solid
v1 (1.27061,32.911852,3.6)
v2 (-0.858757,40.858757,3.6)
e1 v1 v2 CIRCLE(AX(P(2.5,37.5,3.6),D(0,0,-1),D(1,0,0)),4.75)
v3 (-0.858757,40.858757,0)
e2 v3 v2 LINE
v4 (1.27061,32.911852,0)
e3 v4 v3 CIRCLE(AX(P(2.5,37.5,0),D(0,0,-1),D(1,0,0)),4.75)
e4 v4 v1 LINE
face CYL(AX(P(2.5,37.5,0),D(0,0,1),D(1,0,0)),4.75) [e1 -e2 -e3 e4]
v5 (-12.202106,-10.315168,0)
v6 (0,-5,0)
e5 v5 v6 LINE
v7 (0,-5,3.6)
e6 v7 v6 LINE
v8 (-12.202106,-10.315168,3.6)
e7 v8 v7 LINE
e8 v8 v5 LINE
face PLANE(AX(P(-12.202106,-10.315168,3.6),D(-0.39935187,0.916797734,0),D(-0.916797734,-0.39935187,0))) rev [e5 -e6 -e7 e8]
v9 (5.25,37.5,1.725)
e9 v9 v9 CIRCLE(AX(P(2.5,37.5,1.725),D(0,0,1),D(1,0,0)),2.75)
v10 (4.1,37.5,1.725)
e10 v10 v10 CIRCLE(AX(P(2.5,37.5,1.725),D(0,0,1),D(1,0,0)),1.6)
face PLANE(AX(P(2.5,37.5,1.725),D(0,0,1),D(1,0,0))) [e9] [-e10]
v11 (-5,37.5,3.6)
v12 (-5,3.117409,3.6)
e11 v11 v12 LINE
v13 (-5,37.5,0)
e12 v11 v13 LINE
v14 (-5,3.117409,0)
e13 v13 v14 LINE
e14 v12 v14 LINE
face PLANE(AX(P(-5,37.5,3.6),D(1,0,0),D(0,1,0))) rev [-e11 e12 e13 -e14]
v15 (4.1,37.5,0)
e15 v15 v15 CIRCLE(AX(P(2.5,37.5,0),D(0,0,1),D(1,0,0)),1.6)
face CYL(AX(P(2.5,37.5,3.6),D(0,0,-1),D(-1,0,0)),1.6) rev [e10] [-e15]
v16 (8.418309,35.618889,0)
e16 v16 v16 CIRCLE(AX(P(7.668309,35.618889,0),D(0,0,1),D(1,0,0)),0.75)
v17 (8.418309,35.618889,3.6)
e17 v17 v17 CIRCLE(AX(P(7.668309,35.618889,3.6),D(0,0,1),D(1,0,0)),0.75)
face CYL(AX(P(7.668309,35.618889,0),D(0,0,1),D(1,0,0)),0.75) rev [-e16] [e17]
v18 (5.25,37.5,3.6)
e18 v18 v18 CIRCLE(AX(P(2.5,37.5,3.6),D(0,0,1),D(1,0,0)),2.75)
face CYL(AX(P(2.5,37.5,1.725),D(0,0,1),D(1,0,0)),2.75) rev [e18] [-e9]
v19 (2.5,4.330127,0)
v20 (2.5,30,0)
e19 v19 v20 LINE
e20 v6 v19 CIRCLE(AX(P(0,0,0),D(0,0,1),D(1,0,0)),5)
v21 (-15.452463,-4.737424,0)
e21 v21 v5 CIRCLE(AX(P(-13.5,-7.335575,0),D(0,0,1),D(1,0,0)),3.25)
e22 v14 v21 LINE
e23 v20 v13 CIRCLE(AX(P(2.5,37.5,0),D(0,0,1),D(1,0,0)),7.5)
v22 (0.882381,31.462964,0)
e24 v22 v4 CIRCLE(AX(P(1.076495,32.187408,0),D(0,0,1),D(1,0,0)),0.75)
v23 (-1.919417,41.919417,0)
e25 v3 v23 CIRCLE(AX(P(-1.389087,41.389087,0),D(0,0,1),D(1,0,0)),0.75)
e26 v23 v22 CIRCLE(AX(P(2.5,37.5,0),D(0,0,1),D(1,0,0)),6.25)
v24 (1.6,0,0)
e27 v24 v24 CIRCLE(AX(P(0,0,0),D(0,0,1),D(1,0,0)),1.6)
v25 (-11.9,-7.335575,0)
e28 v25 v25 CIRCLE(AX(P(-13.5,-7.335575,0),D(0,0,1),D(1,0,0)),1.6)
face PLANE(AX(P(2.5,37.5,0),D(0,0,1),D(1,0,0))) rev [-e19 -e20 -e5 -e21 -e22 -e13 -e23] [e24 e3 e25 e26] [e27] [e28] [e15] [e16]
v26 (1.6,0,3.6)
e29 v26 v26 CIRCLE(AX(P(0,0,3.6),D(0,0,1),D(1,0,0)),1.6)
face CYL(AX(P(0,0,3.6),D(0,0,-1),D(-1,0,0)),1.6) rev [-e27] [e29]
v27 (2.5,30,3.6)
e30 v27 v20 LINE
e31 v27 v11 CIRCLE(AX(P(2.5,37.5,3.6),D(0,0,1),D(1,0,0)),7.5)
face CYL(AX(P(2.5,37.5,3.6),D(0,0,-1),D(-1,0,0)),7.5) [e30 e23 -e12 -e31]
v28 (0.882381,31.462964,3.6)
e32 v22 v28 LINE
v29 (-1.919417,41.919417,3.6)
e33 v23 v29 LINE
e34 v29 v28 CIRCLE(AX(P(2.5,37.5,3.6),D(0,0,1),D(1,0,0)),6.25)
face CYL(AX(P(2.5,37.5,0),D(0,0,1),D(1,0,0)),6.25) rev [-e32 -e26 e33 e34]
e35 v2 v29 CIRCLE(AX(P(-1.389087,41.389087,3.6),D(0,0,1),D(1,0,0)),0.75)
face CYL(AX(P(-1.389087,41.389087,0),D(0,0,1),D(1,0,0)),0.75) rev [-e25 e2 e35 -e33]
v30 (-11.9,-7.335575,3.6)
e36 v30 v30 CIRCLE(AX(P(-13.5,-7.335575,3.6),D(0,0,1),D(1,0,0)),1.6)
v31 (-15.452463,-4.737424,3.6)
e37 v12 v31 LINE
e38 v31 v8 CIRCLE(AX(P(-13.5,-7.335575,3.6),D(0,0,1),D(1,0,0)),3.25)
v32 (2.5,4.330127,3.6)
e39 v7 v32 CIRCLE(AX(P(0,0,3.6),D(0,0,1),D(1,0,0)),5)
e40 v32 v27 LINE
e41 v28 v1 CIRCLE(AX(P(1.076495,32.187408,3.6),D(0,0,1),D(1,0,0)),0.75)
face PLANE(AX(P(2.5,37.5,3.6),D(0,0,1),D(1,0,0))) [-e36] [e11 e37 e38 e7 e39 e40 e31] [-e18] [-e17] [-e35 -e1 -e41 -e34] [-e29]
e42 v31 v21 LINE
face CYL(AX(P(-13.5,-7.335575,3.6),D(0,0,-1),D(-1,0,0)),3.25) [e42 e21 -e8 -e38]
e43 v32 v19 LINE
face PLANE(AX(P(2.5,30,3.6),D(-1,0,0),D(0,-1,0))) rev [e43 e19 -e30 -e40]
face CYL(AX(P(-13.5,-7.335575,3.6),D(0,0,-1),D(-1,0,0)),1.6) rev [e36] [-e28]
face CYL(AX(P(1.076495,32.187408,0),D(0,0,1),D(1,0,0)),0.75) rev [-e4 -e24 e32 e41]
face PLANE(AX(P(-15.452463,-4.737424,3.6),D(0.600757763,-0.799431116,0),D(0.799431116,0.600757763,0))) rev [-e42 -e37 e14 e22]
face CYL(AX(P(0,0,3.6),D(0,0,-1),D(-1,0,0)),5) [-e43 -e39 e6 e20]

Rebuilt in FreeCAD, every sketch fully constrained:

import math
import FreeCAD as App
import Part
import Sketcher

V = App.Vector
Q = App.Units.Quantity

doc = App.newDocument("Part")
body = doc.addObject("PartDesign::Body", "Body")

sketch1 = body.newObject("Sketcher::SketchObject", "Sketch")
sketch1.AttachmentSupport = (doc.getObject("XY_Plane"), [""])
sketch1.MapMode = "FlatFace"
sketch1.addGeometry(Part.LineSegment(V(-5, 37.5, 0), V(-5, 3.117409, 0)), False)
sketch1.addGeometry(Part.LineSegment(V(-5, 3.117409, 0), V(-15.452463, -4.737424, 0)), False)
sketch1.addGeometry(Part.ArcOfCircle(Part.Circle(V(-13.5, -7.335575, 0), V(0, 0, 1), 3.25), math.radians(126.924188), math.radians(293.537667)), False)
sketch1.addGeometry(Part.LineSegment(V(-12.202106, -10.315168, 0), V(0, -5, 0)), False)
sketch1.addGeometry(Part.ArcOfCircle(Part.Circle(V(0, 0, 0), V(0, 0, 1), 5), math.radians(-90), math.radians(60)), False)
sketch1.addGeometry(Part.LineSegment(V(2.5, 4.330127, 0), V(2.5, 30, 0)), False)
sketch1.addGeometry(Part.ArcOfCircle(Part.Circle(V(2.5, 37.5, 0), V(0, 0, 1), 7.5), math.radians(-90), math.radians(180)), False)
sketch1.addGeometry(Part.Circle(V(-13.5, -7.335575, 0), V(0, 0, 1), 1.6), False)
sketch1.addGeometry(Part.Circle(V(0, 0, 0), V(0, 0, 1), 1.6), False)
sketch1.addGeometry(Part.Circle(V(2.5, 37.5, 0), V(0, 0, 1), 1.6), False)
sketch1.addConstraint(Sketcher.Constraint("Coincident", 0, 2, 1, 1))
sketch1.addConstraint(Sketcher.Constraint("Tangent", 1, 2, 2, 1))
sketch1.addConstraint(Sketcher.Constraint("Tangent", 2, 2, 3, 1))
sketch1.addConstraint(Sketcher.Constraint("Coincident", 3, 2, 4, 1))
sketch1.addConstraint(Sketcher.Constraint("Coincident", 4, 2, 5, 1))
sketch1.addConstraint(Sketcher.Constraint("Coincident", 5, 2, 6, 1))
sketch1.addConstraint(Sketcher.Constraint("Tangent", 6, 2, 0, 1))
sketch1.addConstraint(Sketcher.Constraint("Vertical", 0))
sketch1.addConstraint(Sketcher.Constraint("Vertical", 5))
sketch1.addConstraint(Sketcher.Constraint("Coincident", 4, 3, -1, 1))
sketch1.addConstraint(Sketcher.Constraint("Coincident", 8, 3, -1, 1))
sketch1.addConstraint(Sketcher.Constraint("Coincident", 7, 3, 2, 3))
sketch1.addConstraint(Sketcher.Constraint("Coincident", 9, 3, 6, 3))
sketch1.addConstraint(Sketcher.Constraint("Equal", 7, 8))
sketch1.addConstraint(Sketcher.Constraint("Equal", 8, 9))
sketch1.addConstraint(Sketcher.Constraint("PointOnObject", 3, 2, -2))
sketch1.addConstraint(Sketcher.Constraint("Vertical", 9, 3, 4, 2))
sketch1.addConstraint(Sketcher.Constraint("Radius", 4, Q("5 mm")))
sketch1.addConstraint(Sketcher.Constraint("Diameter", 7, Q("3.2 mm")))
sketch1.addConstraint(Sketcher.Constraint("Radius", 6, Q("7.5 mm")))
sketch1.addConstraint(Sketcher.Constraint("Radius", 2, Q("3.25 mm")))
sketch1.addConstraint(Sketcher.Constraint("DistanceX", 0, 2, -1, 1, Q("5 mm")))
sketch1.addConstraint(Sketcher.Constraint("DistanceY", -1, 1, 5, 2, Q("30 mm")))
sketch1.addConstraint(Sketcher.Constraint("DistanceX", 2, 3, 6, 3, Q("16 mm")))
sketch1.addConstraint(Sketcher.Constraint("DistanceY", 0, 2, 0, 1, Q("34.382591 mm")))
sketch1.addConstraint(Sketcher.Constraint("DistanceY", 2, 2, -1, 1, Q("10.315168 mm")))
pad1 = body.newObject("PartDesign::Pad", "Pad")
pad1.Profile = sketch1
pad1.Length = 3.6

sketch2 = body.newObject("Sketcher::SketchObject", "Sketch001")
sketch2.AttachmentSupport = (doc.getObject("XY_Plane"), [""])
sketch2.MapMode = "FlatFace"
sketch2.AttachmentOffset = App.Placement(V(0, 0, 3.6), App.Rotation())
sketch2.addGeometry(Part.Circle(V(7.668309, 35.618889, 0), V(0, 0, 1), 0.75), False)
sketch2.addGeometry(Part.ArcOfCircle(Part.Circle(V(-1.389087, 41.389087, 0), V(0, 0, 1), 0.75), math.radians(-45), math.radians(135)), False)
sketch2.addGeometry(Part.ArcOfCircle(Part.Circle(V(2.5, 37.5, 0), V(0, 0, 1), 6.25), math.radians(135), math.radians(255)), False)
sketch2.addGeometry(Part.ArcOfCircle(Part.Circle(V(1.076495, 32.187408, 0), V(0, 0, 1), 0.75), math.radians(-105), math.radians(75)), False)
sketch2.addGeometry(Part.ArcOfCircle(Part.Circle(V(2.5, 37.5, 0), V(0, 0, 1), 4.75), math.radians(135), math.radians(255)), False)
sketch2.addConstraint(Sketcher.Constraint("Tangent", 1, 2, 2, 1))
sketch2.addConstraint(Sketcher.Constraint("Tangent", 2, 2, 3, 1))
sketch2.addConstraint(Sketcher.Constraint("Tangent", 3, 2, 4, 2))
sketch2.addConstraint(Sketcher.Constraint("Tangent", 4, 1, 1, 1))
sketch2.addConstraint(Sketcher.Constraint("Coincident", 4, 3, 2, 3))
sketch2.addConstraint(Sketcher.Constraint("Equal", 0, 1))
sketch2.addConstraint(Sketcher.Constraint("Diameter", 0, Q("1.5 mm")))
sketch2.addConstraint(Sketcher.Constraint("Radius", 2, Q("6.25 mm")))
sketch2.addConstraint(Sketcher.Constraint("DistanceX", -1, 1, 2, 3, Q("2.5 mm")))
sketch2.addConstraint(Sketcher.Constraint("DistanceY", -1, 1, 2, 3, Q("37.5 mm")))
sketch2.addConstraint(Sketcher.Constraint("DistanceY", 0, 3, 1, 3, Q("5.770198 mm")))
sketch2.addConstraint(Sketcher.Constraint("DistanceX", 3, 2, 0, 3, Q("6.3977 mm")))
sketch2.addConstraint(Sketcher.Constraint("DistanceX", -1, 1, 0, 3, Q("7.668309 mm")))
sketch2.addConstraint(Sketcher.Constraint("DistanceY", -1, 1, 0, 3, Q("35.618889 mm")))
pocket1 = body.newObject("PartDesign::Pocket", "Pocket")
pocket1.Profile = sketch2
pocket1.Type = "ThroughAll"

sketch3 = body.newObject("Sketcher::SketchObject", "Sketch002")
sketch3.AttachmentSupport = (doc.getObject("XY_Plane"), [""])
sketch3.MapMode = "FlatFace"
sketch3.AttachmentOffset = App.Placement(V(0, 0, 3.6), App.Rotation())
sketch3.addGeometry(Part.Circle(V(2.5, 37.5, 0), V(0, 0, 1), 2.75), False)
sketch3.addConstraint(Sketcher.Constraint("Diameter", 0, Q("5.5 mm")))
sketch3.addConstraint(Sketcher.Constraint("DistanceX", -1, 1, 0, 3, Q("2.5 mm")))
sketch3.addConstraint(Sketcher.Constraint("DistanceY", -1, 1, 0, 3, Q("37.5 mm")))
pocket2 = body.newObject("PartDesign::Pocket", "Pocket001")
pocket2.Profile = sketch3
pocket2.Length = 1.875

doc.recompute()
